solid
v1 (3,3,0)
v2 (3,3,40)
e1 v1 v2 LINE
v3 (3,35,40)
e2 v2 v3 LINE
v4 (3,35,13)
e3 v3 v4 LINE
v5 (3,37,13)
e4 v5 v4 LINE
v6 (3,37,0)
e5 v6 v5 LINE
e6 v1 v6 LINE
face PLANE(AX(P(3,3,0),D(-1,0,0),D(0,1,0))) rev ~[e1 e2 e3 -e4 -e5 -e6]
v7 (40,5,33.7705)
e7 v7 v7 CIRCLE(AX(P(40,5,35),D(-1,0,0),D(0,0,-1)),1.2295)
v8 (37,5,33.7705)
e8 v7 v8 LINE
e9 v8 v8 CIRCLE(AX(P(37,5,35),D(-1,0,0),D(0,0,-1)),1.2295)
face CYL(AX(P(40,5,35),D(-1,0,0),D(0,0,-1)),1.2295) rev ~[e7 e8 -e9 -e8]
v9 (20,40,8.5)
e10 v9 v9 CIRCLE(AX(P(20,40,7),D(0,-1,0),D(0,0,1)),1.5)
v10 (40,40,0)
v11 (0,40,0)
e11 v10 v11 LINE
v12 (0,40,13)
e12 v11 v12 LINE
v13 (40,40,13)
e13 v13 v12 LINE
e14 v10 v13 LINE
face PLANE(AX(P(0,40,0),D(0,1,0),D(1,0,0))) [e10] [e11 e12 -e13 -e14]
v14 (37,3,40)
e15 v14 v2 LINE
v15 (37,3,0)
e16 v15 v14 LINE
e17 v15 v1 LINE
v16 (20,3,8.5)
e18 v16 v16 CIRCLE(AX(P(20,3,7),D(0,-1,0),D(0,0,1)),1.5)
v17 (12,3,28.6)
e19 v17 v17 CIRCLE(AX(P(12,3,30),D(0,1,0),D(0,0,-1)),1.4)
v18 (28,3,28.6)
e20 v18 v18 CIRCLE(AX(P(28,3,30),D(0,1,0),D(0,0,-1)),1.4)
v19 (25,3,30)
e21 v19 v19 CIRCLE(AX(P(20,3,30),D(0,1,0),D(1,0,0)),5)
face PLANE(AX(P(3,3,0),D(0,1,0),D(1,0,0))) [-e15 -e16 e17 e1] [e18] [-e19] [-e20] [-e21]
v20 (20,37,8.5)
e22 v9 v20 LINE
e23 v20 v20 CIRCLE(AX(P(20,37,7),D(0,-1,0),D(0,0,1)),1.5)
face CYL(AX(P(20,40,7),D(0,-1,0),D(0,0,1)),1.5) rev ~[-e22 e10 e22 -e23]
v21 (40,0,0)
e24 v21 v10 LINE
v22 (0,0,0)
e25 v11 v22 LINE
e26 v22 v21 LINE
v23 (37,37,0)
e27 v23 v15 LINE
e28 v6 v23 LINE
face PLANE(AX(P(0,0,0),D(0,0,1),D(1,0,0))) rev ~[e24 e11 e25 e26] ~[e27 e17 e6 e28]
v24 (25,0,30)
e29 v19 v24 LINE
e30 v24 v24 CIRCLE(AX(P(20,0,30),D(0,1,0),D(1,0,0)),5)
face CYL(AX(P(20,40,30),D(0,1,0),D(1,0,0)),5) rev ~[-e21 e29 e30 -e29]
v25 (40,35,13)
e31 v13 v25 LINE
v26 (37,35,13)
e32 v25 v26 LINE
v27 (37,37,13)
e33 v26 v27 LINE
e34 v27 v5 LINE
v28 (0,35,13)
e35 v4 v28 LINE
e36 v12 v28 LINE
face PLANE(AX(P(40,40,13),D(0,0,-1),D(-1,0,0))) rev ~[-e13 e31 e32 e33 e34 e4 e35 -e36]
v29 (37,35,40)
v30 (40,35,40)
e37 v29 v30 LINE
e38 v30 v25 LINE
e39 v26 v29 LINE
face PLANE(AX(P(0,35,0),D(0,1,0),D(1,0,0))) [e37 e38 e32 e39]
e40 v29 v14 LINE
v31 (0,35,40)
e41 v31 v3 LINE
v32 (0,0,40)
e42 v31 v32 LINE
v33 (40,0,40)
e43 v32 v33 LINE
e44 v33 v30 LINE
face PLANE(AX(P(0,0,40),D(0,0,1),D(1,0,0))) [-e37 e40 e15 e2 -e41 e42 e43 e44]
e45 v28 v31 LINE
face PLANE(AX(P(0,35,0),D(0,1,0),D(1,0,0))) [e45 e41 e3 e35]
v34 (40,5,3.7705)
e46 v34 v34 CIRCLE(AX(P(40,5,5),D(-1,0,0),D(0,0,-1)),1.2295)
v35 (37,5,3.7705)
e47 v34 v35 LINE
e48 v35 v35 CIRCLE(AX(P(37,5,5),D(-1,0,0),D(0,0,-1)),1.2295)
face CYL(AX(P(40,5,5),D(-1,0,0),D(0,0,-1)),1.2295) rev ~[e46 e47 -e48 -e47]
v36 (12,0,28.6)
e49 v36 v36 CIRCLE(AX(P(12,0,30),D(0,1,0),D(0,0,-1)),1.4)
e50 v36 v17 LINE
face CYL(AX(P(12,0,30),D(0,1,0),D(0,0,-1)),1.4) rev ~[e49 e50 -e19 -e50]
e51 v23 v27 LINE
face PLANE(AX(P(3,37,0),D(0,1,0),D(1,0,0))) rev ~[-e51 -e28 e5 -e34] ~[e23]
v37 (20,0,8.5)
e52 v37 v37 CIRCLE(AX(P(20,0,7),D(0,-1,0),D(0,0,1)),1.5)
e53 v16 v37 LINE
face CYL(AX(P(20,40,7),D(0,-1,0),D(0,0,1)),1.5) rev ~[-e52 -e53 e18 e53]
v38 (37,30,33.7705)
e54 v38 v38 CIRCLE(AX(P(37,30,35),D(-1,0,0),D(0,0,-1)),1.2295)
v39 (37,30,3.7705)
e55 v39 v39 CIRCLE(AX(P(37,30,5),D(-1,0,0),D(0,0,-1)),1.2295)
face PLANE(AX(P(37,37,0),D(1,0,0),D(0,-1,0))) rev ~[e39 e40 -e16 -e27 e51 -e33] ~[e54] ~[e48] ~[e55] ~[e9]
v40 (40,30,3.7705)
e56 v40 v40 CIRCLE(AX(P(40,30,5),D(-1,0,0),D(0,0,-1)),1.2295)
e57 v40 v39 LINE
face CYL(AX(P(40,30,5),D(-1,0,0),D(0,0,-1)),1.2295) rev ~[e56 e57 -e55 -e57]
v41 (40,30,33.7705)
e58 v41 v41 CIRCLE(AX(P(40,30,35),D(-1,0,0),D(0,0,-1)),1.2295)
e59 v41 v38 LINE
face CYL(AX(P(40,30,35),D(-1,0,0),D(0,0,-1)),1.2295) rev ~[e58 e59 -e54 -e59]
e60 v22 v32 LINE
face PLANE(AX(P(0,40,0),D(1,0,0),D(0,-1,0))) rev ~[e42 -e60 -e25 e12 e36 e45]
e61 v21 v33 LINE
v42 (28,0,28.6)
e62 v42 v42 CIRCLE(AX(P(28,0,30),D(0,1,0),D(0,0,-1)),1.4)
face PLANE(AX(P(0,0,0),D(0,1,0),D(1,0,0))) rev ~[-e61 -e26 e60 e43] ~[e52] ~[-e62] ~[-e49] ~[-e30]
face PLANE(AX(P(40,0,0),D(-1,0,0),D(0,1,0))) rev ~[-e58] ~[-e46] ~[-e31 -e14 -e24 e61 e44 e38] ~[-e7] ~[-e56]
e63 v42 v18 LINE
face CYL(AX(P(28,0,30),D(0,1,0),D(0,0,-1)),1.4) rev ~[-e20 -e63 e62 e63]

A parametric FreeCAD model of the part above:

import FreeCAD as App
import Part
import Sketcher
from FreeCAD import Vector
Q = App.Units.Quantity

doc = App.newDocument("Part")
body = doc.addObject("PartDesign::Body", "Body")

sketch1 = body.newObject("Sketcher::SketchObject", "Sketch")
sketch1.AttachmentSupport = (doc.getObject("XY_Plane"), [""])
sketch1.MapMode = "FlatFace"
sketch1.addGeometry([
    Part.LineSegment(Vector(0, 40, 0), Vector(0, 0, 0)),
    Part.LineSegment(Vector(0, 0, 0), Vector(40, 0, 0)),
    Part.LineSegment(Vector(40, 0, 0), Vector(40, 40, 0)),
    Part.LineSegment(Vector(40, 40, 0), Vector(0, 40, 0)),
    Part.LineSegment(Vector(3, 3, 0), Vector(3, 37, 0)),
    Part.LineSegment(Vector(3, 37, 0), Vector(37, 37, 0)),
    Part.LineSegment(Vector(37, 37, 0), Vector(37, 3, 0)),
    Part.LineSegment(Vector(37, 3, 0), Vector(3, 3, 0)),
], False)
sketch1.addConstraint([
    Sketcher.Constraint("Coincident", 0, 2, 1, 1),
    Sketcher.Constraint("Coincident", 1, 2, 2, 1),
    Sketcher.Constraint("Coincident", 2, 2, 3, 1),
    Sketcher.Constraint("Coincident", 3, 2, 0, 1),
    Sketcher.Constraint("Coincident", 4, 2, 5, 1),
    Sketcher.Constraint("Coincident", 5, 2, 6, 1),
    Sketcher.Constraint("Coincident", 6, 2, 7, 1),
    Sketcher.Constraint("Coincident", 7, 2, 4, 1),
    Sketcher.Constraint("Vertical", 0),
    Sketcher.Constraint("Horizontal", 1),
    Sketcher.Constraint("Vertical", 2),
    Sketcher.Constraint("Horizontal", 3),
    Sketcher.Constraint("Vertical", 4),
    Sketcher.Constraint("Horizontal", 5),
    Sketcher.Constraint("Vertical", 6),
    Sketcher.Constraint("Horizontal", 7),
    Sketcher.Constraint("Coincident", 0, 2, -1, 1),
    Sketcher.Constraint("Equal", 3, 0),
    Sketcher.Constraint("Equal", 7, 4),
    Sketcher.Constraint("DistanceX", 1, 1, 1, 2, Q("40 mm")),
    Sketcher.Constraint("DistanceX", -1, 1, 4, 2, Q("3 mm")),
    Sketcher.Constraint("DistanceY", -1, 1, 6, 2, Q("3 mm")),
    Sketcher.Constraint("DistanceY", 4, 2, 3, 2, Q("3 mm")),
])
pad1 = body.newObject("PartDesign::Pad", "Pad")
pad1.Profile = sketch1
pad1.Length = 40

sketch2 = body.newObject("Sketcher::SketchObject", "Sketch001")
sketch2.AttachmentSupport = (doc.getObject("XZ_Plane"), [""])
sketch2.MapMode = "FlatFace"
sketch2.AttachmentOffset = App.Placement(Vector(0, 0, -40), App.Rotation())
sketch2.addGeometry([
    Part.LineSegment(Vector(0, 13, 0), Vector(0, 40, 0)),
    Part.LineSegment(Vector(0, 40, 0), Vector(40, 40, 0)),
    Part.LineSegment(Vector(40, 40, 0), Vector(40, 13, 0)),
    Part.LineSegment(Vector(40, 13, 0), Vector(0, 13, 0)),
], False)
sketch2.addConstraint([
    Sketcher.Constraint("Coincident", 0, 2, 1, 1),
    Sketcher.Constraint("Coincident", 1, 2, 2, 1),
    Sketcher.Constraint("Coincident", 2, 2, 3, 1),
    Sketcher.Constraint("Coincident", 3, 2, 0, 1),
    Sketcher.Constraint("Vertical", 0),
    Sketcher.Constraint("Horizontal", 1),
    Sketcher.Constraint("Vertical", 2),
    Sketcher.Constraint("Horizontal", 3),
    Sketcher.Constraint("PointOnObject", 0, 2, -2),
    Sketcher.Constraint("DistanceX", 1, 1, 1, 2, Q("40 mm")),
    Sketcher.Constraint("DistanceY", 0, 1, 0, 2, Q("27 mm")),
    Sketcher.Constraint("DistanceY", -1, 1, 0, 2, Q("40 mm")),
])
pocket1 = body.newObject("PartDesign::Pocket", "Pocket")
pocket1.Profile = sketch2
pocket1.Length = 5
pocket1.Reversed = True

sketch3 = body.newObject("Sketcher::SketchObject", "Sketch002")
sketch3.AttachmentSupport = (doc.getObject("XZ_Plane"), [""])
sketch3.MapMode = "FlatFace"
sketch3.AttachmentOffset = App.Placement(Vector(0, 0, -40), App.Rotation())
sketch3.addGeometry([
    Part.Circle(Vector(20, 6.5, 0), Vector(0, 0, 1), 1.5),
    Part.Circle(Vector(20, 30, 0), Vector(0, 0, 1), 5),
], False)
sketch3.addConstraint([
    Sketcher.Constraint("Vertical", 0, 3, 1, 3),
    Sketcher.Constraint("Diameter", 0, Q("3 mm")),
    Sketcher.Constraint("Diameter", 1, Q("10 mm")),
    Sketcher.Constraint("DistanceY", -1, 1, 0, 3, Q("6.5 mm")),
    Sketcher.Constraint("DistanceX", -1, 1, 0, 3, Q("20 mm")),
    Sketcher.Constraint("DistanceY", -1, 1, 1, 3, Q("30 mm")),
])
pocket2 = body.newObject("PartDesign::Pocket", "Pocket001")
pocket2.Profile = sketch3
pocket2.Type = "ThroughAll"
pocket2.Reversed = True

sketch4 = body.newObject("Sketcher::SketchObject", "Sketch003")
sketch4.AttachmentSupport = (doc.getObject("XZ_Plane"), [""])
sketch4.MapMode = "FlatFace"
sketch4.addGeometry([
    Part.Circle(Vector(12, 30, 0), Vector(0, 0, 1), 1.4),
    Part.Circle(Vector(28, 30, 0), Vector(0, 0, 1), 1.4),
], False)
sketch4.addConstraint([
    Sketcher.Constraint("Equal", 0, 1),
    Sketcher.Constraint("Horizontal", 0, 3, 1, 3),
    Sketcher.Constraint("Diameter", 0, Q("2.8 mm")),
    Sketcher.Constraint("DistanceX", -1, 1, 0, 3, Q("12 mm")),
    Sketcher.Constraint("DistanceY", -1, 1, 0, 3, Q("30 mm")),
    Sketcher.Constraint("DistanceX", -1, 1, 1, 3, Q("28 mm")),
])
doc.recompute()
hole = body.newObject("PartDesign::Hole", "Hole")
hole.Profile = sketch4
hole.ThreadType = "None"
hole.Diameter = 2.8
hole.DepthType = "ThroughAll"

sketch5 = body.newObject("Sketcher::SketchObject", "Sketch004")
sketch5.AttachmentSupport = (doc.getObject("YZ_Plane"), [""])
sketch5.MapMode = "FlatFace"
sketch5.AttachmentOffset = App.Placement(Vector(0, 0, 40), App.Rotation())
sketch5.addGeometry([
    Part.Circle(Vector(5, 35, 0), Vector(0, 0, 1), 1.2),
    Part.Circle(Vector(30, 35, 0), Vector(0, 0, 1), 1.2),
    Part.Circle(Vector(30, 5, 0), Vector(0, 0, 1), 1.2),
    Part.Circle(Vector(5, 5, 0), Vector(0, 0, 1), 1.2),
], False)
sketch5.addConstraint([
    Sketcher.Constraint("Equal", 0, 1),
    Sketcher.Constraint("Equal", 1, 2),
    Sketcher.Constraint("Equal", 2, 3),
    Sketcher.Constraint("Horizontal", 0, 3, 1, 3),
    Sketcher.Constraint("Horizontal", 2, 3, 3, 3),
    Sketcher.Constraint("Vertical", 1, 3, 2, 3),
    Sketcher.Constraint("Vertical", 0, 3, 3, 3),
    Sketcher.Constraint("Diameter", 0, Q("2.459 mm")),
    Sketcher.Constraint("DistanceX", -1, 1, 0, 3, Q("5 mm")),
    Sketcher.Constraint("DistanceY", -1, 1, 0, 3, Q("35 mm")),
    Sketcher.Constraint("DistanceX", -1, 1, 1, 3, Q("30 mm")),
    Sketcher.Constraint("DistanceY", -1, 1, 2, 3, Q("5 mm")),
])
doc.recompute()
hole2 = body.newObject("PartDesign::Hole", "Hole001")
hole2.Profile = sketch5
hole2.ThreadType = "None"
hole2.Diameter = 2.459
hole2.DepthType = "Dimension"
hole2.Depth = 3
hole2.DrillPoint = "Flat"

sketch6 = body.newObject("Sketcher::SketchObject", "Sketch005")
sketch6.AttachmentSupport = (doc.getObject("XZ_Plane"), [""])
sketch6.MapMode = "FlatFace"
sketch6.AttachmentOffset = App.Placement(Vector(0, 0, -40), App.Rotation())
sketch6.addGeometry(Part.Circle(Vector(20, 6.5, 0), Vector(0, 0, 1), 1.5), False)
sketch6.addConstraint([
    Sketcher.Constraint("Diameter", 0, Q("3 mm")),
    Sketcher.Constraint("DistanceX", -1, 1, 0, 3, Q("20 mm")),
    Sketcher.Constraint("DistanceY", -1, 1, 0, 3, Q("6.5 mm")),
])
pad2 = body.newObject("PartDesign::Pad", "Pad001")
pad2.Profile = sketch6
pad2.Length = 3

sketch7 = body.newObject("Sketcher::SketchObject", "Sketch006")
sketch7.AttachmentSupport = (doc.getObject("XZ_Plane"), [""])
sketch7.MapMode = "FlatFace"
sketch7.AttachmentOffset = App.Placement(Vector(0, 0, -3), App.Rotation())
sketch7.addGeometry(Part.Circle(Vector(20, 6.5, 0), Vector(0, 0, 1), 1.5), False)
sketch7.addConstraint([
    Sketcher.Constraint("Diameter", 0, Q("3 mm")),
    Sketcher.Constraint("DistanceX", -1, 1, 0, 3, Q("20 mm")),
    Sketcher.Constraint("DistanceY", -1, 1, 0, 3, Q("6.5 mm")),
])
pad3 = body.newObject("PartDesign::Pad", "Pad002")
pad3.Profile = sketch7
pad3.Length = 3

sketch8 = body.newObject("Sketcher::SketchObject", "Sketch007")
sketch8.AttachmentSupport = (doc.getObject("XZ_Plane"), [""])
sketch8.MapMode = "FlatFace"
sketch8.AttachmentOffset = App.Placement(Vector(0, 0, -40), App.Rotation())
sketch8.addGeometry(Part.Circle(Vector(20, 7, 0), Vector(0, 0, 1), 1.5), False)
sketch8.addConstraint([
    Sketcher.Constraint("Diameter", 0, Q("3 mm")),
    Sketcher.Constraint("DistanceX", -1, 1, 0, 3, Q("20 mm")),
    Sketcher.Constraint("DistanceY", -1, 1, 0, 3, Q("7 mm")),
])
doc.recompute()
hole3 = body.newObject("PartDesign::Hole", "Hole002")
hole3.Profile = sketch8
hole3.ThreadType = "None"
hole3.Diameter = 3
hole3.DepthType = "ThroughAll"
hole3.Reversed = True

doc.recompute()
